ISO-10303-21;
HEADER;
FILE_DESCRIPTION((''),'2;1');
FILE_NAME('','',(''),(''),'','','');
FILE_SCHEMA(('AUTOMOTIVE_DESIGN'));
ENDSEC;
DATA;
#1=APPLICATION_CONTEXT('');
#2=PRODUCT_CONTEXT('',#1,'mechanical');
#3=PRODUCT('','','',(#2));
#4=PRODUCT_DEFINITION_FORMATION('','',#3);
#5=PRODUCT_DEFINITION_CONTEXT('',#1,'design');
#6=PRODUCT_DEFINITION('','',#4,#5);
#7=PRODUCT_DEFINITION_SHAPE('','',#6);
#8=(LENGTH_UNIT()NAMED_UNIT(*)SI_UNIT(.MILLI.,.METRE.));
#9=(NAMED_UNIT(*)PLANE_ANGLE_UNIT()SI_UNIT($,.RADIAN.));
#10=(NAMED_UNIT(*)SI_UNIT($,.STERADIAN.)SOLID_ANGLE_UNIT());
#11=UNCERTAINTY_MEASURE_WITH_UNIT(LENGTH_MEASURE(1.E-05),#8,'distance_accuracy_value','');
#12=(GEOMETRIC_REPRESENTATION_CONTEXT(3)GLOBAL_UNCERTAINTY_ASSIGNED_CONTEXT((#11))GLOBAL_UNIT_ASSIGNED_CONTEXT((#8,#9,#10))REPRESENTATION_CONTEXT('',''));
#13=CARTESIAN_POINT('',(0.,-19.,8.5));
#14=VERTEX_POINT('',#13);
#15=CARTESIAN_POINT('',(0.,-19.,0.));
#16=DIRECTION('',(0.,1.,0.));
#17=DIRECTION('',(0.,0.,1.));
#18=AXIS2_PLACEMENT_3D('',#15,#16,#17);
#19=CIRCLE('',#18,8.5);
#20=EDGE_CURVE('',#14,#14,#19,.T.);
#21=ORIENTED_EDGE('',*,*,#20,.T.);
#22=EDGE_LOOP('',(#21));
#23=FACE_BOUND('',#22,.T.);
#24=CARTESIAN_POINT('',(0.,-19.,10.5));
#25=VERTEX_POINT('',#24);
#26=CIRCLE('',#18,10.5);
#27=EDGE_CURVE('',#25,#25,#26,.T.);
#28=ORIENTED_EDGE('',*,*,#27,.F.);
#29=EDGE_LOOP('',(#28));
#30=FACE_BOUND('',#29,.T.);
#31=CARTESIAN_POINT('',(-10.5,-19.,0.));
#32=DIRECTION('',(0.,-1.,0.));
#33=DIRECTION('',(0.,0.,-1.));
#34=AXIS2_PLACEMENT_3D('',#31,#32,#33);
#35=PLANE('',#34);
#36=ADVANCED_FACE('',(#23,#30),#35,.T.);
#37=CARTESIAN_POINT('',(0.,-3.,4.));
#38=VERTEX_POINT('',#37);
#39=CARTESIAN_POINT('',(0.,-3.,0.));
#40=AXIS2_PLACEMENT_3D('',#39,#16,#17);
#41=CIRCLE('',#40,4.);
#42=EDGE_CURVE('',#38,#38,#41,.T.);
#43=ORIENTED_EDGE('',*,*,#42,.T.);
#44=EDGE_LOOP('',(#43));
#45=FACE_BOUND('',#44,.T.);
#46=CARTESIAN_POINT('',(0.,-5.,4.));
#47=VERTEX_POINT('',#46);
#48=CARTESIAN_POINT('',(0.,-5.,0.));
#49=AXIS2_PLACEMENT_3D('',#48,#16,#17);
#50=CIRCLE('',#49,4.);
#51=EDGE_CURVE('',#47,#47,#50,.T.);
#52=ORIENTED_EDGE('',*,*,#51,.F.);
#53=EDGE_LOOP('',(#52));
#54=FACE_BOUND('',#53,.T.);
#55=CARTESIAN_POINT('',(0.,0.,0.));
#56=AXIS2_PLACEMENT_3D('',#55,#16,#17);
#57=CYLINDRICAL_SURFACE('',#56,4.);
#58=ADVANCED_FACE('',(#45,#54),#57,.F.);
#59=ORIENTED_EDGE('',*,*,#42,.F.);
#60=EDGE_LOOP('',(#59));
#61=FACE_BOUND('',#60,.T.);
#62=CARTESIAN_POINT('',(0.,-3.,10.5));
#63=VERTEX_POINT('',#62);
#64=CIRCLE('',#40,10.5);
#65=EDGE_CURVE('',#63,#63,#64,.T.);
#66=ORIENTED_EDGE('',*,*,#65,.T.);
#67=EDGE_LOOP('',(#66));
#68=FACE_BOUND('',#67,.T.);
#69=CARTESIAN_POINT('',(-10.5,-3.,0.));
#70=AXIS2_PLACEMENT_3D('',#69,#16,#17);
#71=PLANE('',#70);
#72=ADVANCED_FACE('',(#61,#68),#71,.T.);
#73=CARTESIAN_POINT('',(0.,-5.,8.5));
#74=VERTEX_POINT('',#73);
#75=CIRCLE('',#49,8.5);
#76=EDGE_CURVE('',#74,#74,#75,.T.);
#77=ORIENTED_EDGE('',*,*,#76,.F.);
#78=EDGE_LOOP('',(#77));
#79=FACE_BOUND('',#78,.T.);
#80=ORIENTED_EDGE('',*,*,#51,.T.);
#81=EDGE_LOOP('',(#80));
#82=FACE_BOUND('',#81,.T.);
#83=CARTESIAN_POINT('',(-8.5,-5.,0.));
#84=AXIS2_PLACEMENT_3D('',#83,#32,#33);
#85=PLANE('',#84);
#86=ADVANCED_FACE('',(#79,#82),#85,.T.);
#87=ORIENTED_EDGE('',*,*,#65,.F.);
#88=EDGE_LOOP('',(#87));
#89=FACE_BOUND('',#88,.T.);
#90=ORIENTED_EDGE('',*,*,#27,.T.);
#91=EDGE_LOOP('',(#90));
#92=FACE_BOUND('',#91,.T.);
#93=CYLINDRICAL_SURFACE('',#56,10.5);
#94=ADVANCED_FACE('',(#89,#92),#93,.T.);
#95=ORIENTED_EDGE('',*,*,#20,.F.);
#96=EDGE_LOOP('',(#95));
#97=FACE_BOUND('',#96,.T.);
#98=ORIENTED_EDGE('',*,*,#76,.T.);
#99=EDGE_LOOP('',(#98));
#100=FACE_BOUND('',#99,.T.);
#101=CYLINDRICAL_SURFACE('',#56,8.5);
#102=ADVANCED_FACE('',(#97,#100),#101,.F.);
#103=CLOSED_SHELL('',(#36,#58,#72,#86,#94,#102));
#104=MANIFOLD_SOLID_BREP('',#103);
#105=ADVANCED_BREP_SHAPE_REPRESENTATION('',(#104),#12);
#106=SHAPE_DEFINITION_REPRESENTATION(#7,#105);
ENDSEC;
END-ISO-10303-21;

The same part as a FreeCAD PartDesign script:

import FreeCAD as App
import Part
import Sketcher
from FreeCAD import Vector


def add_polygon(sketch, points):
    """Adds a closed chain of lines whose ends are joined by coincident constraints."""
    first, n = sketch.GeometryCount, len(points)
    for a, b in zip(points, points[1:] + points[:1]):
        sketch.addGeometry(Part.LineSegment(App.Vector(*a, 0), App.Vector(*b, 0)), False)
    for i in range(n):
        sketch.addConstraint(Sketcher.Constraint("Coincident", first + i, 2, first + (i + 1) % n, 1))

doc = App.newDocument("Part")
body = doc.addObject("PartDesign::Body", "Body")

sketch1 = body.newObject("Sketcher::SketchObject", "Sketch")
sketch1.AttachmentSupport = (doc.getObject("XY_Plane"), [""])
sketch1.MapMode = "FlatFace"
add_polygon(sketch1, [(-4, -3), (-10.5, -3), (-10.5, -19), (-8.5, -19), (-8.5, -5), (-4, -5)])
sketch1.addConstraint(Sketcher.Constraint("Horizontal", 0))
sketch1.addConstraint(Sketcher.Constraint("Vertical", 1))
sketch1.addConstraint(Sketcher.Constraint("Horizontal", 2))
sketch1.addConstraint(Sketcher.Constraint("Vertical", 3))
sketch1.addConstraint(Sketcher.Constraint("Horizontal", 4))
sketch1.addConstraint(Sketcher.Constraint("Vertical", 5))
sketch1.addConstraint(Sketcher.Constraint("Equal", 2, 5))
sketch1.addConstraint(Sketcher.Constraint("DistanceX", 2, 1, 2, 2, 2.0))
sketch1.addConstraint(Sketcher.Constraint("DistanceY", 1, 2, 1, 1, 16.0))
sketch1.addConstraint(Sketcher.Constraint("DistanceX", 0, 2, 0, 1, 6.5))
sketch1.addConstraint(Sketcher.Constraint("DistanceY", 0, 2, -1, 1, 3.0))
sketch1.addConstraint(Sketcher.Constraint("DistanceX", 4, 2, -1, 1, 4.0))
revolution = body.newObject("PartDesign::Revolution", "Revolution")
revolution.Profile = sketch1
revolution.ReferenceAxis = (sketch1, ["V_Axis"])
revolution.Angle = 360

doc.recompute()
